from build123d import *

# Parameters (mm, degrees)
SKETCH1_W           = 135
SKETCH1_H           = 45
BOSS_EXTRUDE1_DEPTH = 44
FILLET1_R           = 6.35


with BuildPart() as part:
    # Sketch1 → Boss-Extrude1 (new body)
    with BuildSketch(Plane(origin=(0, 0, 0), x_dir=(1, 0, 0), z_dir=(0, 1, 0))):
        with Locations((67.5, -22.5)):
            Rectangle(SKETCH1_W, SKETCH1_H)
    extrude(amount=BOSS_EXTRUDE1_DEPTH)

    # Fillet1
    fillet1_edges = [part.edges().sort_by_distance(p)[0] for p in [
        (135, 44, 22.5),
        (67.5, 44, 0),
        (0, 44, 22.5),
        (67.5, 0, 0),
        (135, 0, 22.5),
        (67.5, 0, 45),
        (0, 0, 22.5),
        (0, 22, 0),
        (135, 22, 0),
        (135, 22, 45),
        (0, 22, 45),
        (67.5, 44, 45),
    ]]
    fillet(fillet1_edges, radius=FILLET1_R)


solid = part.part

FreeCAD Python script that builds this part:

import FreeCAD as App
import Part
import Sketcher
from FreeCAD import Vector
Q = App.Units.Quantity

doc = App.newDocument("Part")
body = doc.addObject("PartDesign::Body", "Body")

# Sketch on XZ plane
sketch1 = body.newObject("Sketcher::SketchObject", "Sketch")
sketch1.AttachmentSupport = (doc.getObject("XZ_Plane"), [""])
sketch1.MapMode = "FlatFace"
sketch1.addGeometry([
    Part.LineSegment(Vector(0, 0, 0), Vector(0, 45, 0)),
    Part.LineSegment(Vector(0, 45, 0), Vector(135, 45, 0)),
    Part.LineSegment(Vector(135, 45, 0), Vector(135, 0, 0)),
    Part.LineSegment(Vector(135, 0, 0), Vector(0, 0, 0)),
], False)
sketch1.addConstraint([
    Sketcher.Constraint("Coincident", 0, 2, 1, 1),
    Sketcher.Constraint("Coincident", 1, 2, 2, 1),
    Sketcher.Constraint("Coincident", 2, 2, 3, 1),
    Sketcher.Constraint("Coincident", 3, 2, 0, 1),
    Sketcher.Constraint("Vertical", 0),
    Sketcher.Constraint("Horizontal", 1),
    Sketcher.Constraint("Vertical", 2),
    Sketcher.Constraint("Horizontal", 3),
    Sketcher.Constraint("Coincident", 3, 2, -1, 1),
    Sketcher.Constraint("DistanceX", 1, 1, 1, 2, Q("135 mm")),
    Sketcher.Constraint("DistanceY", 0, 1, 0, 2, Q("45 mm")),
])
pad1 = body.newObject("PartDesign::Pad", "Pad")
pad1.Profile = sketch1
pad1.Length = 44
pad1.Reversed = True
doc.recompute()

fillet = body.newObject("PartDesign::Fillet", "Fillet")
fillet.Base = (pad1, ["Edge1"])
fillet.UseAllEdges = True
fillet.Radius = 6.35

doc.recompute()
